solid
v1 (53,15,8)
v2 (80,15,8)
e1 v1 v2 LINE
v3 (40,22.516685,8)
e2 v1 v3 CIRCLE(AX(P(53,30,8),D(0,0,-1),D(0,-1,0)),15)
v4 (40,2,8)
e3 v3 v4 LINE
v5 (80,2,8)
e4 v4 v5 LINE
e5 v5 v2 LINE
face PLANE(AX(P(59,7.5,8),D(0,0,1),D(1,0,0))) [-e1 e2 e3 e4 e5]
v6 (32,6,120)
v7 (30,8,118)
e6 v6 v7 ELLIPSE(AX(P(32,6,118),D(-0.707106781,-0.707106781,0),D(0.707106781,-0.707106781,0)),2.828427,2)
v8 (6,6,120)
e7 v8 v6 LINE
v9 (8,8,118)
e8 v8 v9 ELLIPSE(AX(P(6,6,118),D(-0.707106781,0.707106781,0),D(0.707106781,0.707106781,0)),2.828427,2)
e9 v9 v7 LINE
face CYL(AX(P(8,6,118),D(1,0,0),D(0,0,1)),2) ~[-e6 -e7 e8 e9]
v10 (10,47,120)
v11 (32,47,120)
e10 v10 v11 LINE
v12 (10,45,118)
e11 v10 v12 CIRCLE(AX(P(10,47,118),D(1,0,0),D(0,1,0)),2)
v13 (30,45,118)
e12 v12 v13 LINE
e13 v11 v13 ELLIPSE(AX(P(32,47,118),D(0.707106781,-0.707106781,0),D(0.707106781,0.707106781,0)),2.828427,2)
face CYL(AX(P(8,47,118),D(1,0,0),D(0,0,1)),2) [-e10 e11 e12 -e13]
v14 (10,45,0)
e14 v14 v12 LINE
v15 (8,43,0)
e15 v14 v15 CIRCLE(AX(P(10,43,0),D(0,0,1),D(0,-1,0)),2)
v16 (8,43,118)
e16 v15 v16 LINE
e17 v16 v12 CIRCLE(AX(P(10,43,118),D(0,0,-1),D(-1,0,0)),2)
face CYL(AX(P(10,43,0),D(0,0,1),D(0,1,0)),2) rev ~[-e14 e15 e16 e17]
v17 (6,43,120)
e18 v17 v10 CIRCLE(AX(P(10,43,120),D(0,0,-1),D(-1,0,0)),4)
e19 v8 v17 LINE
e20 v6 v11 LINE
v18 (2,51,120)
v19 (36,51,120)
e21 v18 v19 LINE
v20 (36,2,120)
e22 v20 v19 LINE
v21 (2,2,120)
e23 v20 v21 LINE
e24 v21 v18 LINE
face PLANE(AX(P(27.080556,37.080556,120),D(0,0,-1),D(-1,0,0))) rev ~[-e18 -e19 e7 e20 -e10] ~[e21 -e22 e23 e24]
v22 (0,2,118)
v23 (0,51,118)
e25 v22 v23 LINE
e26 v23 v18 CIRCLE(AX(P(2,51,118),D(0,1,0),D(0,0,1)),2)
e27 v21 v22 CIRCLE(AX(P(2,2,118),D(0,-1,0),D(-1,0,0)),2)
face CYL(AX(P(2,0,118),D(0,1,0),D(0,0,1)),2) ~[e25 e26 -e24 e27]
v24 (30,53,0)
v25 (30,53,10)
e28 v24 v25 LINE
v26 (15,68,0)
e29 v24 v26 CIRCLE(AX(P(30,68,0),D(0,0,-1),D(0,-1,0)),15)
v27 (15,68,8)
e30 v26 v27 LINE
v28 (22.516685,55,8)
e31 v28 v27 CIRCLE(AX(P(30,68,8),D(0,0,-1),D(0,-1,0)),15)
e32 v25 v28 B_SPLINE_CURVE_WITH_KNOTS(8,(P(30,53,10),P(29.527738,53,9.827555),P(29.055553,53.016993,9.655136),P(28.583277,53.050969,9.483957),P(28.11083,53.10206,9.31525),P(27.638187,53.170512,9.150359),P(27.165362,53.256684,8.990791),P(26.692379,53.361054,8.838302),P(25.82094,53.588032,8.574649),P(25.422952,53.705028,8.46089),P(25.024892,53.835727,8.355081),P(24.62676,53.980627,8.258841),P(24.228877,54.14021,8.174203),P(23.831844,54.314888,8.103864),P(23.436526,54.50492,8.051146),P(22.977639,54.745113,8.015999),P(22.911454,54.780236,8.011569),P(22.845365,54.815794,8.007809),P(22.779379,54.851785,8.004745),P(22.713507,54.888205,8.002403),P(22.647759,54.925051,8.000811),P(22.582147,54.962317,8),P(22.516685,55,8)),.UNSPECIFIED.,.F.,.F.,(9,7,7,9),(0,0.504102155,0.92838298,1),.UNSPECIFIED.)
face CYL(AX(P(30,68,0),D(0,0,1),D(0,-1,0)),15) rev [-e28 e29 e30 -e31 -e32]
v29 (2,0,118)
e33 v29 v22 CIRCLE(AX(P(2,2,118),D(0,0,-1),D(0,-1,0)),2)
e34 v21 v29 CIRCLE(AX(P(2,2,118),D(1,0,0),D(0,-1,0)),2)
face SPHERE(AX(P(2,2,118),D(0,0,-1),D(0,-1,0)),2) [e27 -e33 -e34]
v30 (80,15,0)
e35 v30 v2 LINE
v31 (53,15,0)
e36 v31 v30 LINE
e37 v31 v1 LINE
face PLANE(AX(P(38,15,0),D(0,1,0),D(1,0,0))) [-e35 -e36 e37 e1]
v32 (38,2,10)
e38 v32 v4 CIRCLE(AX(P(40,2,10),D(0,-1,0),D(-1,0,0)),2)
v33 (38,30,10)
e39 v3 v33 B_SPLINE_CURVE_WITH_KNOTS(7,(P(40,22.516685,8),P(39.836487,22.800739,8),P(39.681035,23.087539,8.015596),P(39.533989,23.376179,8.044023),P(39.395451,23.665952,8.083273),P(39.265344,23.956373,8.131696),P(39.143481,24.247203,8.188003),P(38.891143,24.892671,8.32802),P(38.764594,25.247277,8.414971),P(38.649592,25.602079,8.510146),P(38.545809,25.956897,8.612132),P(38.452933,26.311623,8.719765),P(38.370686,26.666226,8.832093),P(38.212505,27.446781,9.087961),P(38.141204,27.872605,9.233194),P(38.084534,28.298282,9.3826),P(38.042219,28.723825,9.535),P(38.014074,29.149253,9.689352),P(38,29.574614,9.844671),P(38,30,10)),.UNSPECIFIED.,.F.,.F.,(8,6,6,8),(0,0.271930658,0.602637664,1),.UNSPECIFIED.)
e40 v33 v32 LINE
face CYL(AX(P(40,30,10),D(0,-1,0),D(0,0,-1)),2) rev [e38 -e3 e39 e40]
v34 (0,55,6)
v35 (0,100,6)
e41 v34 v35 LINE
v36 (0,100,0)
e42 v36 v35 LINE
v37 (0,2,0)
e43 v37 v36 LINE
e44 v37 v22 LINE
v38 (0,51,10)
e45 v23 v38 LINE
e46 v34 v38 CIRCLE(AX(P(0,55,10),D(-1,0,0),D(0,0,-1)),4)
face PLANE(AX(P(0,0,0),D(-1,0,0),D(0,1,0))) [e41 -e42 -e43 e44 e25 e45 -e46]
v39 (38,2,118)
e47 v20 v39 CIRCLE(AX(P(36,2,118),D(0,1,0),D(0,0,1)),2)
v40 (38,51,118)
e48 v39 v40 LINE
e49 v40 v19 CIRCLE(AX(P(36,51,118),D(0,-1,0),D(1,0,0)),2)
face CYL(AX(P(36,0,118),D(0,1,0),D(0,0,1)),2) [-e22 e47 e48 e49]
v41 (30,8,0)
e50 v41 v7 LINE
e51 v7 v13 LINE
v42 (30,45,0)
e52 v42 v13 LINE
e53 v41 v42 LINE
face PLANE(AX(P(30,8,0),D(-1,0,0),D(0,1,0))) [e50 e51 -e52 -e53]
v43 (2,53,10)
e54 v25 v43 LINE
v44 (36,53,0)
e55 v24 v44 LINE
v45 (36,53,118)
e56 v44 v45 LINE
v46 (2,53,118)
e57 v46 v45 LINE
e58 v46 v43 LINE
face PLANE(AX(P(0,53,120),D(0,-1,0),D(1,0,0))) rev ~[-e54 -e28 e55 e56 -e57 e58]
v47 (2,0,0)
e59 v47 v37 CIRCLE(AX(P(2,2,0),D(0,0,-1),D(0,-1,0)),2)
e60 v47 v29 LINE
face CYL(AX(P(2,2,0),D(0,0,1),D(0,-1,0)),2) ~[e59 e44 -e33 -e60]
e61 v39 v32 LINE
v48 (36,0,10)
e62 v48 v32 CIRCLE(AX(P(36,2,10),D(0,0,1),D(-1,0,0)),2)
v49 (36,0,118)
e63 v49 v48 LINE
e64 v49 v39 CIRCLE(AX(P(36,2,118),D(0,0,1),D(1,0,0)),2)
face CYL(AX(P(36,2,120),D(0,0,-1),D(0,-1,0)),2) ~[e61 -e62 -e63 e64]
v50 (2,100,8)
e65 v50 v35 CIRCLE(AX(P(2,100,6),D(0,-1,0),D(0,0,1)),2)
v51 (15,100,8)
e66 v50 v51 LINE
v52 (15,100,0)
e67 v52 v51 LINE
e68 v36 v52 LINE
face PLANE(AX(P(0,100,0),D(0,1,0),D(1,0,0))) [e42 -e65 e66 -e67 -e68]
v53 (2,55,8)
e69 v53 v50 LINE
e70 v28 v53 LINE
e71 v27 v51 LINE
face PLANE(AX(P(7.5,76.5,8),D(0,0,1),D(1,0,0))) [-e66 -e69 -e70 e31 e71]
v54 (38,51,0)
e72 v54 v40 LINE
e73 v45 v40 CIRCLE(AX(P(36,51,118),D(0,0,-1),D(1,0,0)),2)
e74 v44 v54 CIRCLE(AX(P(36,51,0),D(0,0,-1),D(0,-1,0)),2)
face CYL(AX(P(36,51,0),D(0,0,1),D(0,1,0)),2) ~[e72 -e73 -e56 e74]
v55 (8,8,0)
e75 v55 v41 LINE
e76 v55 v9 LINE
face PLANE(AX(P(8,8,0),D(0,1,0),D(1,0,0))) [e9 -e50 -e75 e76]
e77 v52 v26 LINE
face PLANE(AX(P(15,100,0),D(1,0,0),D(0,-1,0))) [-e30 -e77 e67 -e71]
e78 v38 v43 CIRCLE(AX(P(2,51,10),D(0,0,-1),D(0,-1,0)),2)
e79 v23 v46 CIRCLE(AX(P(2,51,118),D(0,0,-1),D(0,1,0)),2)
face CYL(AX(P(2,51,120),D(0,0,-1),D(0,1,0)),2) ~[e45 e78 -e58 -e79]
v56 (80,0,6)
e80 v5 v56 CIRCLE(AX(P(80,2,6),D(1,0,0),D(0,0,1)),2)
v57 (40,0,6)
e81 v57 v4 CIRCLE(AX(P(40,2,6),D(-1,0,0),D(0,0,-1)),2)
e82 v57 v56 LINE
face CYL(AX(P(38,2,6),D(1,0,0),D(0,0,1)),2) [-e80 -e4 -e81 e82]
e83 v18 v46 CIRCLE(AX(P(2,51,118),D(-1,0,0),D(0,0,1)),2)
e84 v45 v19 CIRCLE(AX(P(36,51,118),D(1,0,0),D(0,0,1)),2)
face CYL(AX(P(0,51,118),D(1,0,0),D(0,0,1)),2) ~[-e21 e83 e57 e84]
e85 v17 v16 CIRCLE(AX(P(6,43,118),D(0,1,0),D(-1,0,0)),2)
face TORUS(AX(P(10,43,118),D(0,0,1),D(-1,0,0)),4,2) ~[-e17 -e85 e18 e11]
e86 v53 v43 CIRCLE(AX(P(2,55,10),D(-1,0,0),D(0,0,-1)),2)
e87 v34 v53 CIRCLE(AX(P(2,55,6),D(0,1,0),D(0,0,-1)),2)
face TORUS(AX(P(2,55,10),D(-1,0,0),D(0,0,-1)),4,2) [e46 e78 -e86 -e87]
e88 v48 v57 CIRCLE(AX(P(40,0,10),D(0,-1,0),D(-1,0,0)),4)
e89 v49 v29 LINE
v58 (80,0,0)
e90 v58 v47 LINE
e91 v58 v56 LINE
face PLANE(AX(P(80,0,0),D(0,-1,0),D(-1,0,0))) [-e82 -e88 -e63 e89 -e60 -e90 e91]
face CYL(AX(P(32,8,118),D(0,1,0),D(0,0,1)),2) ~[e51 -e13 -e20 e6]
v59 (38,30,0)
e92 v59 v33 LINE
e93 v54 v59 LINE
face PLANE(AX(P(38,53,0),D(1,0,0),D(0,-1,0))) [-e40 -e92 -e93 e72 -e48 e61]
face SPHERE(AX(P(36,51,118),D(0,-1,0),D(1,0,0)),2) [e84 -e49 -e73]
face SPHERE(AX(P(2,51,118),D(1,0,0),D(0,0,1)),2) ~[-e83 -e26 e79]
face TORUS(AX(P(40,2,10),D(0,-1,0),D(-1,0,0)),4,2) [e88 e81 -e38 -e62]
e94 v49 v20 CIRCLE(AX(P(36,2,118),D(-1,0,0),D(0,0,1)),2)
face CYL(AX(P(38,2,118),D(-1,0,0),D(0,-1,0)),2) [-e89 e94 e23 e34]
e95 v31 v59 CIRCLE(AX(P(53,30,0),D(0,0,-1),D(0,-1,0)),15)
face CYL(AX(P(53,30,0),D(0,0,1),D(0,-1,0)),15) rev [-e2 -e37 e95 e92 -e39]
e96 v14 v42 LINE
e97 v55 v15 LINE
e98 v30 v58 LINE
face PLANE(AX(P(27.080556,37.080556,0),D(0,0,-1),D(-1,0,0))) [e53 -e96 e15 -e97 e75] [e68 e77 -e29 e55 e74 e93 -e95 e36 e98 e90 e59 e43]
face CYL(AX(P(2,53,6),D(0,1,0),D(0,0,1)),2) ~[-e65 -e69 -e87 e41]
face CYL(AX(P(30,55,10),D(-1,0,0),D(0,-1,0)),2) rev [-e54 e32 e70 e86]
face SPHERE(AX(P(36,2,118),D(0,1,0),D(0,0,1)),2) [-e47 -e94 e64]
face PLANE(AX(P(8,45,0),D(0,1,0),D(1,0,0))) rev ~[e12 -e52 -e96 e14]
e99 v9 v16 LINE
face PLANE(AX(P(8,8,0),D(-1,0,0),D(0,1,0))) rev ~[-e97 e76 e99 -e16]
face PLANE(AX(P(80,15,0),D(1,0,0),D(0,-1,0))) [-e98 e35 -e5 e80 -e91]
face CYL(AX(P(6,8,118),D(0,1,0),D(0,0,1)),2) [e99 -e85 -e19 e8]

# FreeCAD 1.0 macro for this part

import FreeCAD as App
import Part
import Sketcher


def edges_at(feature, points):
    """Names of the edges that pass closest to the given points."""
    edges = feature.Shape.Edges
    near = lambda p: min(range(len(edges)), key=lambda i: edges[i].distToShape(Part.Vertex(*p))[0])
    return sorted({f"Edge{near(p) + 1}" for p in points})


def add_polygon(sketch, points):
    """Adds a closed chain of lines whose ends are joined by coincident constraints."""
    first, n = sketch.GeometryCount, len(points)
    for a, b in zip(points, points[1:] + points[:1]):
        sketch.addGeometry(Part.LineSegment(App.Vector(*a, 0), App.Vector(*b, 0)), False)
    for i in range(n):
        sketch.addConstraint(Sketcher.Constraint("Coincident", first + i, 2, first + (i + 1) % n, 1))

doc = App.newDocument("Part")
body = doc.addObject("PartDesign::Body", "Body")

sketch1 = body.newObject("Sketcher::SketchObject", "Sketch")
sketch1.AttachmentSupport = (doc.getObject("XY_Plane"), [""])
sketch1.MapMode = "FlatFace"
add_polygon(sketch1, [(0, 100), (0, 0), (80, 0), (80, 15), (38, 15), (38, 53), (15, 53), (15, 100)])
add_polygon(sketch1, [(8, 8), (8, 45), (30, 45), (30, 8)])
sketch1.addConstraint(Sketcher.Constraint("Vertical", 0))
sketch1.addConstraint(Sketcher.Constraint("Horizontal", 1))
sketch1.addConstraint(Sketcher.Constraint("Vertical", 2))
sketch1.addConstraint(Sketcher.Constraint("Horizontal", 3))
sketch1.addConstraint(Sketcher.Constraint("Vertical", 4))
sketch1.addConstraint(Sketcher.Constraint("Horizontal", 5))
sketch1.addConstraint(Sketcher.Constraint("Vertical", 6))
sketch1.addConstraint(Sketcher.Constraint("Horizontal", 7))
sketch1.addConstraint(Sketcher.Constraint("Vertical", 8))
sketch1.addConstraint(Sketcher.Constraint("Horizontal", 9))
sketch1.addConstraint(Sketcher.Constraint("Vertical", 10))
sketch1.addConstraint(Sketcher.Constraint("Horizontal", 11))
sketch1.addConstraint(Sketcher.Constraint("Coincident", 0, 2, -1, 1))
sketch1.addConstraint(Sketcher.Constraint("Equal", 7, 2))
sketch1.addConstraint(Sketcher.Constraint("DistanceX", 1, 1, 1, 2, 80.0))
sketch1.addConstraint(Sketcher.Constraint("DistanceX", 3, 2, 3, 1, 42.0))
sketch1.addConstraint(Sketcher.Constraint("DistanceX", 5, 2, 5, 1, 23.0))
sketch1.addConstraint(Sketcher.Constraint("DistanceX", 9, 1, 9, 2, 22.0))
sketch1.addConstraint(Sketcher.Constraint("DistanceY", 0, 2, 0, 1, 100.0))
sketch1.addConstraint(Sketcher.Constraint("DistanceY", 4, 1, 4, 2, 38.0))
sketch1.addConstraint(Sketcher.Constraint("DistanceY", 8, 1, 8, 2, 37.0))
sketch1.addConstraint(Sketcher.Constraint("DistanceX", -1, 1, 8, 2, 8.0))
sketch1.addConstraint(Sketcher.Constraint("DistanceY", -1, 1, 8, 2, 45.0))
pad1 = body.newObject("PartDesign::Pad", "Pad")
pad1.Profile = sketch1
pad1.Length = 120

sketch2 = body.newObject("Sketcher::SketchObject", "Sketch001")
sketch2.AttachmentSupport = (doc.getObject("XY_Plane"), [""])
sketch2.MapMode = "FlatFace"
sketch2.AttachmentOffset = App.Placement(App.Vector(0, 0, 120), App.Rotation())
add_polygon(sketch2, [(38, 15), (38, 0), (80, 0), (80, 15)])
add_polygon(sketch2, [(0, 100), (0, 53), (15, 53), (15, 100)])
sketch2.addConstraint(Sketcher.Constraint("Vertical", 0))
sketch2.addConstraint(Sketcher.Constraint("Horizontal", 1))
sketch2.addConstraint(Sketcher.Constraint("Vertical", 2))
sketch2.addConstraint(Sketcher.Constraint("Horizontal", 3))
sketch2.addConstraint(Sketcher.Constraint("Vertical", 4))
sketch2.addConstraint(Sketcher.Constraint("Horizontal", 5))
sketch2.addConstraint(Sketcher.Constraint("Vertical", 6))
sketch2.addConstraint(Sketcher.Constraint("Horizontal", 7))
sketch2.addConstraint(Sketcher.Constraint("PointOnObject", 0, 2, -1))
sketch2.addConstraint(Sketcher.Constraint("PointOnObject", 4, 2, -2))
sketch2.addConstraint(Sketcher.Constraint("Equal", 7, 0))
sketch2.addConstraint(Sketcher.Constraint("DistanceX", 1, 1, 1, 2, 42.0))
sketch2.addConstraint(Sketcher.Constraint("DistanceX", 5, 1, 5, 2, 15.0))
sketch2.addConstraint(Sketcher.Constraint("DistanceY", 4, 2, 4, 1, 47.0))
sketch2.addConstraint(Sketcher.Constraint("DistanceX", -1, 1, 0, 2, 38.0))
sketch2.addConstraint(Sketcher.Constraint("DistanceY", -1, 1, 4, 2, 53.0))
pocket1 = body.newObject("PartDesign::Pocket", "Pocket")
pocket1.Profile = sketch2
pocket1.Length = 112
doc.recompute()

fillet = body.newObject("PartDesign::Fillet", "Fillet")
fillet.Base = (pocket1, edges_at(pocket1, [(38, 15, 4), (15, 53, 4)]))
fillet.Radius = 15
doc.recompute()

fillet2 = body.newObject("PartDesign::Fillet", "Fillet001")
fillet2.Base = (fillet, edges_at(fillet, [
    (38, 26.5, 120),
    (0, 0, 60),
    (38, 53, 60),
    (19, 53, 120),
    (8, 45, 60),
    (8, 26.5, 120),
    (19, 8, 120),
    (30, 26.5, 120),
    (19, 45, 120),
    (19, 0, 120),
    (38, 15, 8),
    (38, 0, 64),
    (59, 0, 8),
    (0, 26.5, 120),
    (0, 76.5, 8),
    (0, 53, 64),
    (15, 53, 8),
]))
fillet2.Radius = 2

doc.recompute()
